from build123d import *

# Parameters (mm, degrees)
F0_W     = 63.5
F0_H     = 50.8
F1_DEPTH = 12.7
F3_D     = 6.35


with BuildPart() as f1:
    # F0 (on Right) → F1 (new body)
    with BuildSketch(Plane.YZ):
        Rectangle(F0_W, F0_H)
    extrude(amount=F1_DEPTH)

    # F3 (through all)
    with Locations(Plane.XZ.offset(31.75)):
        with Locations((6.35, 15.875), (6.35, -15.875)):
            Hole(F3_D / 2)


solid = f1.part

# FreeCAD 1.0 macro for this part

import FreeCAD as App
import Part
import Sketcher

V = App.Vector
Q = App.Units.Quantity


def add_polygon(sketch, points):
    """Adds a closed chain of lines whose ends are joined by coincident constraints."""
    first, n = sketch.GeometryCount, len(points)
    for a, b in zip(points, points[1:] + points[:1]):
        sketch.addGeometry(Part.LineSegment(App.Vector(*a, 0), App.Vector(*b, 0)), False)
    for i in range(n):
        sketch.addConstraint(Sketcher.Constraint("Coincident", first + i, 2, first + (i + 1) % n, 1))

doc = App.newDocument("Part")
body = doc.addObject("PartDesign::Body", "Body")

sketch1 = body.newObject("Sketcher::SketchObject", "Sketch")
sketch1.AttachmentSupport = (doc.getObject("YZ_Plane"), [""])
sketch1.MapMode = "FlatFace"
add_polygon(sketch1, [(-32, 25), (-32, -25), (32, -25), (32, 25)])
sketch1.addConstraint([
    Sketcher.Constraint("Vertical", 0),
    Sketcher.Constraint("Horizontal", 1),
    Sketcher.Constraint("Vertical", 2),
    Sketcher.Constraint("Horizontal", 3),
    Sketcher.Constraint("Symmetric", 0, 2, 2, 2, -1, 1),
    Sketcher.Constraint("DistanceY", 0, 2, 0, 1, Q("2 in")),
    Sketcher.Constraint("DistanceX", 1, 1, 1, 2, Q("2.5 in")),
])
pad1 = body.newObject("PartDesign::Pad", "Pad")
pad1.Profile = sketch1
pad1.Length = Q("0.5 in")

sketch2 = body.newObject("Sketcher::SketchObject", "Sketch001")
sketch2.AttachmentSupport = (doc.getObject("XZ_Plane"), [""])
sketch2.MapMode = "FlatFace"
sketch2.AttachmentOffset = App.Placement(V(0, 0, 1.25 * 25.4), App.Rotation())
sketch2.addGeometry([
    Part.Circle(V(6.3, 15.9, 0), V(0, 0, 1), 3.2),
    Part.Circle(V(6.3, -15.9, 0), V(0, 0, 1), 3.2),
], False)
sketch2.addConstraint([
    Sketcher.Constraint("Equal", 0, 1),
    Sketcher.Constraint("Symmetric", 0, 3, 1, 3, -1),
    Sketcher.Constraint("Diameter", 0, Q("0.25 in")),
    Sketcher.Constraint("DistanceX", -1, 1, 0, 3, Q("0.25 in")),
    Sketcher.Constraint("DistanceY", 1, 3, 0, 3, Q("1.25 in")),
])
doc.recompute()
hole = body.newObject("PartDesign::Hole", "Hole")
hole.Profile = sketch2
hole.ThreadType = "None"
hole.Diameter = Q("0.25 in")
hole.DepthType = "ThroughAll"

doc.recompute()
